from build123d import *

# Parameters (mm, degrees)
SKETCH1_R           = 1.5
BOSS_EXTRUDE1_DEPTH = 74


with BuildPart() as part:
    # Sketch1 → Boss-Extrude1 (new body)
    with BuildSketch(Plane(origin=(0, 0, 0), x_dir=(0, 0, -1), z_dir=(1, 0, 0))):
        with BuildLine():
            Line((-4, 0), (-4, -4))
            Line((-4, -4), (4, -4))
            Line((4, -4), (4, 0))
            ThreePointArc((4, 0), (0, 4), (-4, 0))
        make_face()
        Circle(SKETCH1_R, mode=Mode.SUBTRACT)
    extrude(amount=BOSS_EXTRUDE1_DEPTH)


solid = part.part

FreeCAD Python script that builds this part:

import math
import FreeCAD as App
import Part
import Sketcher
Q = App.Units.Quantity

doc = App.newDocument("Part")
body = doc.addObject("PartDesign::Body", "Body")

sketch1 = body.newObject("Sketcher::SketchObject", "Sketch")
sketch1.AttachmentSupport = (doc.getObject("YZ_Plane"), [""])
sketch1.MapMode = "FlatFace"
sketch1.addGeometry([
    Part.LineSegment(App.Vector(0, 4, 0), App.Vector(-4, 4, 0)),
    Part.LineSegment(App.Vector(-4, 4, 0), App.Vector(-4, -4, 0)),
    Part.LineSegment(App.Vector(-4, -4, 0), App.Vector(0, -4, 0)),
    Part.ArcOfCircle(Part.Circle(App.Vector(0, 0, 0), App.Vector(0, 0, 1), 4), math.radians(-90), math.radians(90)),
    Part.Circle(App.Vector(0, 0, 0), App.Vector(0, 0, 1), 1.5),
], False)
sketch1.addConstraint([
    Sketcher.Constraint("Coincident", 0, 2, 1, 1),
    Sketcher.Constraint("Coincident", 1, 2, 2, 1),
    Sketcher.Constraint("Tangent", 2, 2, 3, 1),
    Sketcher.Constraint("Tangent", 3, 2, 0, 1),
    Sketcher.Constraint("Horizontal", 0),
    Sketcher.Constraint("Vertical", 1),
    Sketcher.Constraint("Horizontal", 2),
    Sketcher.Constraint("Coincident", 3, 3, -1, 1),
    Sketcher.Constraint("Coincident", 4, 3, -1, 1),
    Sketcher.Constraint("Diameter", 4, Q("3 mm")),
    Sketcher.Constraint("Radius", 3, Q("4 mm")),
    Sketcher.Constraint("DistanceX", 0, 2, 0, 1, Q("4 mm")),
])
pad1 = body.newObject("PartDesign::Pad", "Pad")
pad1.Profile = sketch1
pad1.Length = 74

doc.recompute()
